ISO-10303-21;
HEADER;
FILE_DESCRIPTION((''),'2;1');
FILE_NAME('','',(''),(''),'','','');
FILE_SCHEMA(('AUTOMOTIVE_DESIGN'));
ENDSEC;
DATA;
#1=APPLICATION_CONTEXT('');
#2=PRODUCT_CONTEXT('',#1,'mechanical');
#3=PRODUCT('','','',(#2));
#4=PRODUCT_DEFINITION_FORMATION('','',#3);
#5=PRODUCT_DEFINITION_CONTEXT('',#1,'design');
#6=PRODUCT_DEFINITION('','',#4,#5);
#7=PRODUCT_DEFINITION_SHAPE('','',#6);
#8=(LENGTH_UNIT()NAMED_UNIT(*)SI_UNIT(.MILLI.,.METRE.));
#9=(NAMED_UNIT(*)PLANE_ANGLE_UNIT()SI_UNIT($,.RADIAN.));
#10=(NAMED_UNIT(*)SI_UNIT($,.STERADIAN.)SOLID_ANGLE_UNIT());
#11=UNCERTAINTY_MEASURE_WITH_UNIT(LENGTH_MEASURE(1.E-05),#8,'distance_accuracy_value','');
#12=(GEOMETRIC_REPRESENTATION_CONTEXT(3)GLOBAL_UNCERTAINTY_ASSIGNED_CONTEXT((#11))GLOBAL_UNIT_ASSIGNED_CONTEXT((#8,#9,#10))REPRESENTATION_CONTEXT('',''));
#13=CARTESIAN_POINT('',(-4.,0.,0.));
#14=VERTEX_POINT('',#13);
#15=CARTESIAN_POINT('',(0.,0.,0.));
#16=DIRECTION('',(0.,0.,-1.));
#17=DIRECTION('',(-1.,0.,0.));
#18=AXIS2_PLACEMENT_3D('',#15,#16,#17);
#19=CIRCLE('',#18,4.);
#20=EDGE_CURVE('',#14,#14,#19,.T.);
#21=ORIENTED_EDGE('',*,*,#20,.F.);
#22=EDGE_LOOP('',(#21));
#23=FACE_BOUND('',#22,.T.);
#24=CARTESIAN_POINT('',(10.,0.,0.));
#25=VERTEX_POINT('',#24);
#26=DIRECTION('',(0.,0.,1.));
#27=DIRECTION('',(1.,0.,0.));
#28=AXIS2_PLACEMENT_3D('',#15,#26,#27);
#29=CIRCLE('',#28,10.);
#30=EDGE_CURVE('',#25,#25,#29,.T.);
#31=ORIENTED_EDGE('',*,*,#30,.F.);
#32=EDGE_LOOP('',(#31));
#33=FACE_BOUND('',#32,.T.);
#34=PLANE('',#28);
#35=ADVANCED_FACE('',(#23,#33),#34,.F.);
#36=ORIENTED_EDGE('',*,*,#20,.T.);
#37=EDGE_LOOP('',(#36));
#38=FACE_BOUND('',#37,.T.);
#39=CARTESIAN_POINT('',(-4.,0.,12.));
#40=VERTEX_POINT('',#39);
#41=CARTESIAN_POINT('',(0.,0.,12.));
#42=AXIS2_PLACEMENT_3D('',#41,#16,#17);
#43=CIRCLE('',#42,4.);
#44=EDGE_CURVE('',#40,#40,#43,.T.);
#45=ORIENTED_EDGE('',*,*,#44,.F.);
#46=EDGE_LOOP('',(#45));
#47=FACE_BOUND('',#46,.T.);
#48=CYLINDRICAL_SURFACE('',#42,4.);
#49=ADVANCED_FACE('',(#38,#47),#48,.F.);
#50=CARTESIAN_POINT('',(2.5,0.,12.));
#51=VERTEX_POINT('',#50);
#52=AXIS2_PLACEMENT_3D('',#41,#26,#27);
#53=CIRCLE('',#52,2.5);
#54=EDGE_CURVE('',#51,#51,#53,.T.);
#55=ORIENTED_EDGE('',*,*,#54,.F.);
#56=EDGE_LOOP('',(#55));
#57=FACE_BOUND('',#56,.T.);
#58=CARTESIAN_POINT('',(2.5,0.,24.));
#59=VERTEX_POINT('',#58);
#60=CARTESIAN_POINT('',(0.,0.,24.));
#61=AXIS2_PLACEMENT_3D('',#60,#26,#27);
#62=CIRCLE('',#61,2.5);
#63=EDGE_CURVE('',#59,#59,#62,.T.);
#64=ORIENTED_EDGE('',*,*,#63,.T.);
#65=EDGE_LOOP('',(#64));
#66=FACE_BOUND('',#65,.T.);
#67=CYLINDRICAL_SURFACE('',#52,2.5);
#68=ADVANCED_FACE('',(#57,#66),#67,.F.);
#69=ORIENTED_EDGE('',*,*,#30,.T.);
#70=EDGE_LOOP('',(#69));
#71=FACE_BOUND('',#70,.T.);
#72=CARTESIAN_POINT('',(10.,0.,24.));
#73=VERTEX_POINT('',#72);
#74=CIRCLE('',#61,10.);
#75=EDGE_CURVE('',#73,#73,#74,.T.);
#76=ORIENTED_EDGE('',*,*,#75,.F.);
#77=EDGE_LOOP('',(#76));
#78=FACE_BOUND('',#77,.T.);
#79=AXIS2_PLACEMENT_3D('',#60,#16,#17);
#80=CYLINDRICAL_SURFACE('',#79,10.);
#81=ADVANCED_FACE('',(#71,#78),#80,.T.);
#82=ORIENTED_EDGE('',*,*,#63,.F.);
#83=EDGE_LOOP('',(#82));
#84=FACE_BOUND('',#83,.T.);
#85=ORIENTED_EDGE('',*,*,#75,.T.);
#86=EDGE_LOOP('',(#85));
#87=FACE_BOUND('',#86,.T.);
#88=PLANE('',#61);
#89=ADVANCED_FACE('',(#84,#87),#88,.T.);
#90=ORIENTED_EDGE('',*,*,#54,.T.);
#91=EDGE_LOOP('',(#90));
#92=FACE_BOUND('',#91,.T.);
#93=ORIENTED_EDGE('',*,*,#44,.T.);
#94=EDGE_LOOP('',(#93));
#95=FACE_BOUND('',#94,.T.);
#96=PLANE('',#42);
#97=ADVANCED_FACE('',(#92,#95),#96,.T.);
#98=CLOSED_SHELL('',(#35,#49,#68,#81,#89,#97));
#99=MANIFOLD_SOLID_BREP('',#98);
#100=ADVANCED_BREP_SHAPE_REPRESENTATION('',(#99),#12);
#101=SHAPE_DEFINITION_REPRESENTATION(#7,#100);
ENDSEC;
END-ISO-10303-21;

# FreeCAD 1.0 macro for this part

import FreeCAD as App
import Part
import Sketcher

doc = App.newDocument("Part")
body = doc.addObject("PartDesign::Body", "Body")

sketch1 = body.newObject("Sketcher::SketchObject", "Sketch")
sketch1.AttachmentSupport = (doc.getObject("XY_Plane"), [""])
sketch1.MapMode = "FlatFace"
sketch1.addGeometry(Part.Circle(App.Vector(0, 0, 0), App.Vector(0, 0, 1), 10), False)
sketch1.addConstraint(Sketcher.Constraint("Coincident", 0, 3, -1, 1))
sketch1.addConstraint(Sketcher.Constraint("Diameter", 0, 20.0))
pad1 = body.newObject("PartDesign::Pad", "Pad")
pad1.Profile = sketch1
pad1.Length = 24

sketch2 = body.newObject("Sketcher::SketchObject", "Sketch001")
sketch2.AttachmentSupport = (doc.getObject("XY_Plane"), [""])
sketch2.MapMode = "FlatFace"
sketch2.AttachmentOffset = App.Placement(App.Vector(0, 0, 24), App.Rotation())
sketch2.addGeometry(Part.Circle(App.Vector(0, 0, 0), App.Vector(0, 0, 1), 2.5), False)
sketch2.addConstraint(Sketcher.Constraint("Coincident", 0, 3, -1, 1))
sketch2.addConstraint(Sketcher.Constraint("Diameter", 0, 5.0))
pocket1 = body.newObject("PartDesign::Pocket", "Pocket")
pocket1.Profile = sketch2
pocket1.Length = 12

sketch3 = body.newObject("Sketcher::SketchObject", "Sketch002")
sketch3.AttachmentSupport = (doc.getObject("XY_Plane"), [""])
sketch3.MapMode = "FlatFace"
sketch3.addGeometry(Part.Circle(App.Vector(0, 0, 0), App.Vector(0, 0, 1), 4), False)
sketch3.addConstraint(Sketcher.Constraint("Coincident", 0, 3, -1, 1))
sketch3.addConstraint(Sketcher.Constraint("Diameter", 0, 8.0))
pocket2 = body.newObject("PartDesign::Pocket", "Pocket001")
pocket2.Profile = sketch3
pocket2.Length = 12
pocket2.Reversed = True

doc.recompute()
